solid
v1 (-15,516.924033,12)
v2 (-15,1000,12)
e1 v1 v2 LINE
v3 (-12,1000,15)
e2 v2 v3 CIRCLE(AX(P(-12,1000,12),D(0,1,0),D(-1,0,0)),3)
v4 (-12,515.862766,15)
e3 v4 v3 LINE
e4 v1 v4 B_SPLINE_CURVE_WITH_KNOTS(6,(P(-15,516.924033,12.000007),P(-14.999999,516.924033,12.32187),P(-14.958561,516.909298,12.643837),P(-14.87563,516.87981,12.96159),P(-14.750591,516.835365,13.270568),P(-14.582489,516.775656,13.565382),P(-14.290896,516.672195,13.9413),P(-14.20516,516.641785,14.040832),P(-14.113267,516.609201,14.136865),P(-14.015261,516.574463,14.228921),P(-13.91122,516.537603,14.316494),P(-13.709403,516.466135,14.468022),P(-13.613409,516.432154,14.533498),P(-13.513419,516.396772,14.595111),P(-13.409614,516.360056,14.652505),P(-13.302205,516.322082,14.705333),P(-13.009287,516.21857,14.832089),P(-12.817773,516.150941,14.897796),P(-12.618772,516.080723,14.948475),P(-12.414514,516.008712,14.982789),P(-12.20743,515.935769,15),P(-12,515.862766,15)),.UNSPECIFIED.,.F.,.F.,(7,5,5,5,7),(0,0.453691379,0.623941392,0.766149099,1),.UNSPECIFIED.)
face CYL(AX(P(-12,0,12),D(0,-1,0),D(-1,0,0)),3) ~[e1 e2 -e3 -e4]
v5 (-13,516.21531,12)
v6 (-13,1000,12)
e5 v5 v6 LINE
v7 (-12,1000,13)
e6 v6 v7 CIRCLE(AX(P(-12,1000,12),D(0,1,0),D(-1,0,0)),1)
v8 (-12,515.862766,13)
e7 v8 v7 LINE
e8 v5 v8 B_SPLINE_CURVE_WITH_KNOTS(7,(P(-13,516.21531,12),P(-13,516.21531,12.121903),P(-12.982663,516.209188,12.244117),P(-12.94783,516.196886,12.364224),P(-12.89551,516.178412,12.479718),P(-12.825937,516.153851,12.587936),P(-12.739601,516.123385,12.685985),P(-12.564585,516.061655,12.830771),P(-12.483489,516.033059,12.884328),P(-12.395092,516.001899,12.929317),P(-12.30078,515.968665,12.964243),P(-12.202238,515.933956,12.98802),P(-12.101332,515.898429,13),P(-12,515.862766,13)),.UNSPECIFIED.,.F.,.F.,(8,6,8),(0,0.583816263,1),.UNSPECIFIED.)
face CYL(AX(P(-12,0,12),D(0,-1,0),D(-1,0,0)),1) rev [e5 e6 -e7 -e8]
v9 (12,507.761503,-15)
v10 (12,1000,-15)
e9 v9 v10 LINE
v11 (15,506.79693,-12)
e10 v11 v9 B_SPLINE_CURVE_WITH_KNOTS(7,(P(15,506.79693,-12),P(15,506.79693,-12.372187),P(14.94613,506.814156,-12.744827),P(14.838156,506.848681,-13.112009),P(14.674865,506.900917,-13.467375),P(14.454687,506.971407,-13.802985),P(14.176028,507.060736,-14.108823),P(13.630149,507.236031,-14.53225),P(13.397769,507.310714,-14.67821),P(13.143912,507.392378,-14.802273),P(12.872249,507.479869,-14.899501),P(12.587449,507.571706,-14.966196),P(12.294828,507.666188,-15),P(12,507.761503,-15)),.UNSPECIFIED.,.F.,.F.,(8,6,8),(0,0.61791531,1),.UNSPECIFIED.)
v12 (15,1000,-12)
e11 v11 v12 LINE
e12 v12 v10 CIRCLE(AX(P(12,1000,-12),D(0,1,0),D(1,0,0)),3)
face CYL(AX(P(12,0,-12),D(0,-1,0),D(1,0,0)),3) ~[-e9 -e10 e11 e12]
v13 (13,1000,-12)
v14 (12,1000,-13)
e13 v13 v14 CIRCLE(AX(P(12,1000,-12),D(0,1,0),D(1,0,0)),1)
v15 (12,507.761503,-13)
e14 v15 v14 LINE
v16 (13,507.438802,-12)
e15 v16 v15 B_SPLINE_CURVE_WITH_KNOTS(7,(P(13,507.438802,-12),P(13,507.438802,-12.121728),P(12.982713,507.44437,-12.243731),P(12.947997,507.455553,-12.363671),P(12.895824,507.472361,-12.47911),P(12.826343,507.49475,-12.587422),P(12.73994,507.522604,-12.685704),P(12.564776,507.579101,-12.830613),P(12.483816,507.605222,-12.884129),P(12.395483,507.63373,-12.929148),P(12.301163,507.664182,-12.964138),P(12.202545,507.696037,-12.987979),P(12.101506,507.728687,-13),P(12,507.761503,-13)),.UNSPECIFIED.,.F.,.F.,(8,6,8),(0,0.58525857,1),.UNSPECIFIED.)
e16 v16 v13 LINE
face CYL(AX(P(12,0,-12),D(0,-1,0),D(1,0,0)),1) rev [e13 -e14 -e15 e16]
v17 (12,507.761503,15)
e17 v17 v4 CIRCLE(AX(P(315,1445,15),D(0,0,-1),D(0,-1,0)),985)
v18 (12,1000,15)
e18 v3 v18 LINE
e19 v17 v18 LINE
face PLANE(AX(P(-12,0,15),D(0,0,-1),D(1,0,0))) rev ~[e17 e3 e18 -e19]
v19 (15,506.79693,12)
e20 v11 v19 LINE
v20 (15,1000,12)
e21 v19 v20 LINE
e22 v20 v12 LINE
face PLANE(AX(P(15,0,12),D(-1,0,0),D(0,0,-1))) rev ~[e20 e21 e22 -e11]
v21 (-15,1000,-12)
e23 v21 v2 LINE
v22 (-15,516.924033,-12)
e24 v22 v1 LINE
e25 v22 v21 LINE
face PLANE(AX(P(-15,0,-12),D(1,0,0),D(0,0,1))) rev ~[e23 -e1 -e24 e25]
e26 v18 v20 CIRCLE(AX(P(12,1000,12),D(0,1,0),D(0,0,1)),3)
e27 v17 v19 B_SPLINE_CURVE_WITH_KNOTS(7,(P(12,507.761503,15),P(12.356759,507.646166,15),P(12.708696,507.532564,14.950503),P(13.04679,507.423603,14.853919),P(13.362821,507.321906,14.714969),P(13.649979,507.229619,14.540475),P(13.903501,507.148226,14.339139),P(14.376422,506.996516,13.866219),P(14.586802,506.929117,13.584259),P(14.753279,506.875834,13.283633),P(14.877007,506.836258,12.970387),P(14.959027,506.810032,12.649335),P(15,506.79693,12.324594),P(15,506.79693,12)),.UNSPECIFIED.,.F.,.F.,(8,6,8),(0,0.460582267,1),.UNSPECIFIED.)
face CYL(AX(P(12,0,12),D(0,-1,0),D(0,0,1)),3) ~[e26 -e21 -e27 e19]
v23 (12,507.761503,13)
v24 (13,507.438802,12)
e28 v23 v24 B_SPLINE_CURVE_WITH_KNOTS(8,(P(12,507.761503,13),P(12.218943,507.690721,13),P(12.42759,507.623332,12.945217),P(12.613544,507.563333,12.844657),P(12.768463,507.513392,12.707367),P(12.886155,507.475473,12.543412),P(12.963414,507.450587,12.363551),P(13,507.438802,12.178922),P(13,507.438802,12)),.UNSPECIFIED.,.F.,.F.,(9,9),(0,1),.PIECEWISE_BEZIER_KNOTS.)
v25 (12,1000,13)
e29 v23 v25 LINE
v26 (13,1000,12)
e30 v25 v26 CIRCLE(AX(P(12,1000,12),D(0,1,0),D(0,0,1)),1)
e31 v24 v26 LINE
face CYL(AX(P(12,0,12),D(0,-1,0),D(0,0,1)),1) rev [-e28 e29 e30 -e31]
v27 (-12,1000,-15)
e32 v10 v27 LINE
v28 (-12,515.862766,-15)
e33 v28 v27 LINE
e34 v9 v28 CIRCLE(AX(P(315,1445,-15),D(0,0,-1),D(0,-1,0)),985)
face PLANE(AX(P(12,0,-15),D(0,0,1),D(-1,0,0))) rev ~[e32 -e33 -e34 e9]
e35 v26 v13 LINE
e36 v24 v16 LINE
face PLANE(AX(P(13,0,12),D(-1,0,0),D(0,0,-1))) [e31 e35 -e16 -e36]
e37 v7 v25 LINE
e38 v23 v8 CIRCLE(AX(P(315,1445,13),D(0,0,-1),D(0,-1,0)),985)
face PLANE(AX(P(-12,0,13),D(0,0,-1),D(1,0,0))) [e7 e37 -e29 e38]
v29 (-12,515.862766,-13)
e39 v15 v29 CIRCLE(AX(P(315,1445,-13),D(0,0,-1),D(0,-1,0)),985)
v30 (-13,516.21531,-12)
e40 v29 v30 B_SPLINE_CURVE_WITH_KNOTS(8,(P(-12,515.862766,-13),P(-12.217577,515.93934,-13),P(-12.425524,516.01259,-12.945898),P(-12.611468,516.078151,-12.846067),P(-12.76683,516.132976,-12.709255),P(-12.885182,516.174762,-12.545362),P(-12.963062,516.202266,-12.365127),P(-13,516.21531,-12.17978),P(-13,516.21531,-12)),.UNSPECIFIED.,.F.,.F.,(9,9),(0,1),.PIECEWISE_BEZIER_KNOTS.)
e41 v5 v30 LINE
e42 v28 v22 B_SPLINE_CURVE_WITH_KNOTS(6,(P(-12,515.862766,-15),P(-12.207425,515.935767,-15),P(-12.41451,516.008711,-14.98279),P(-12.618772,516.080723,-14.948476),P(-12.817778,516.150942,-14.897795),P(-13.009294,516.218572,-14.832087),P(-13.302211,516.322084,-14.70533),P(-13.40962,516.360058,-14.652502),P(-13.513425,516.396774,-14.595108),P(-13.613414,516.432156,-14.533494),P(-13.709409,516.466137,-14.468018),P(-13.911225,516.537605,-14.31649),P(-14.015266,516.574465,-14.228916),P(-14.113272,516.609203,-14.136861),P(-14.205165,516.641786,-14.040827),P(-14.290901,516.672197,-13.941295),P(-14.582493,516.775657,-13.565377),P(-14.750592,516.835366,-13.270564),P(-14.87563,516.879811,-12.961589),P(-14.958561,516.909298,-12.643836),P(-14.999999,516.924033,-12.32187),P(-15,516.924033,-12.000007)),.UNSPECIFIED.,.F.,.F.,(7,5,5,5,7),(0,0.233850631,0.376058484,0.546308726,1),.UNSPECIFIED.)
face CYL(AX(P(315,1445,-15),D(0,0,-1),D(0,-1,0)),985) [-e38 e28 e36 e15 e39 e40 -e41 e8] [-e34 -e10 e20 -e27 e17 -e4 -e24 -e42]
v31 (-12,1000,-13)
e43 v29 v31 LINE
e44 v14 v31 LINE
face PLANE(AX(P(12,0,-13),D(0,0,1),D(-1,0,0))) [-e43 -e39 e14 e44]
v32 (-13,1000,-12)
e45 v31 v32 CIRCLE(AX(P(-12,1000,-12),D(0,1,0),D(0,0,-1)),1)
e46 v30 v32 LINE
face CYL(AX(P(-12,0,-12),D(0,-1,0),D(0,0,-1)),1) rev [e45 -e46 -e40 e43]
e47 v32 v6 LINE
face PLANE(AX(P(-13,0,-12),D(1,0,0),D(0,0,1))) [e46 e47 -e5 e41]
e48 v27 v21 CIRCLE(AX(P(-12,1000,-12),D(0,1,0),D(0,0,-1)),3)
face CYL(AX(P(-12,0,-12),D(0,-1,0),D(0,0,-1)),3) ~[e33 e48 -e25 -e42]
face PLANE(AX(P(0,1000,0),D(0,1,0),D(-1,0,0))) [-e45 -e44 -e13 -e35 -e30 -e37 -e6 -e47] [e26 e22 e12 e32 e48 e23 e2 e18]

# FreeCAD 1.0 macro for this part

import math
import FreeCAD as App
import Part
import Sketcher
Q = App.Units.Quantity

doc = App.newDocument("Part")
body = doc.addObject("PartDesign::Body", "Body")

sketch1 = doc.addObject("Sketcher::SketchObject", "Sketch")
body.addObject(sketch1)
sketch1.AttachmentSupport = (doc.XZ_Plane, [""])
sketch1.MapMode = "FlatFace"
sketch1.addGeometry(Part.ArcOfCircle(Part.Circle(App.Vector(12, -12, 0), App.Vector(0, 0, 1), 3), math.radians(-90), math.radians(0)), False)
sketch1.addGeometry(Part.LineSegment(App.Vector(12, -15, 0), App.Vector(-12, -15, 0)), False)
sketch1.addGeometry(Part.ArcOfCircle(Part.Circle(App.Vector(-12, -12, 0), App.Vector(0, 0, 1), 3), math.radians(180), math.radians(270)), False)
sketch1.addGeometry(Part.LineSegment(App.Vector(-15, -12, 0), App.Vector(-15, 12, 0)), False)
sketch1.addGeometry(Part.ArcOfCircle(Part.Circle(App.Vector(-12, 12, 0), App.Vector(0, 0, 1), 3), math.radians(90), math.radians(180)), False)
sketch1.addGeometry(Part.LineSegment(App.Vector(-12, 15, 0), App.Vector(12, 15, 0)), False)
sketch1.addGeometry(Part.ArcOfCircle(Part.Circle(App.Vector(12, 12, 0), App.Vector(0, 0, 1), 3), math.radians(0), math.radians(90)), False)
sketch1.addGeometry(Part.LineSegment(App.Vector(15, 12, 0), App.Vector(15, -12, 0)), False)
sketch1.addGeometry(Part.LineSegment(App.Vector(-13, 12, 0), App.Vector(-13, -12, 0)), False)
sketch1.addGeometry(Part.ArcOfCircle(Part.Circle(App.Vector(-12, -12, 0), App.Vector(0, 0, 1), 1), math.radians(180), math.radians(270)), False)
sketch1.addGeometry(Part.LineSegment(App.Vector(-12, -13, 0), App.Vector(12, -13, 0)), False)
sketch1.addGeometry(Part.ArcOfCircle(Part.Circle(App.Vector(12, -12, 0), App.Vector(0, 0, 1), 1), math.radians(-90), math.radians(0)), False)
sketch1.addGeometry(Part.LineSegment(App.Vector(13, -12, 0), App.Vector(13, 12, 0)), False)
sketch1.addGeometry(Part.ArcOfCircle(Part.Circle(App.Vector(12, 12, 0), App.Vector(0, 0, 1), 1), math.radians(0), math.radians(90)), False)
sketch1.addGeometry(Part.LineSegment(App.Vector(12, 13, 0), App.Vector(-12, 13, 0)), False)
sketch1.addGeometry(Part.ArcOfCircle(Part.Circle(App.Vector(-12, 12, 0), App.Vector(0, 0, 1), 1), math.radians(90), math.radians(180)), False)
sketch1.addConstraint(Sketcher.Constraint("Tangent", 0, 1, 1, 1))
sketch1.addConstraint(Sketcher.Constraint("Tangent", 1, 2, 2, 2))
sketch1.addConstraint(Sketcher.Constraint("Tangent", 2, 1, 3, 1))
sketch1.addConstraint(Sketcher.Constraint("Tangent", 3, 2, 4, 2))
sketch1.addConstraint(Sketcher.Constraint("Tangent", 4, 1, 5, 1))
sketch1.addConstraint(Sketcher.Constraint("Tangent", 5, 2, 6, 2))
sketch1.addConstraint(Sketcher.Constraint("Tangent", 6, 1, 7, 1))
sketch1.addConstraint(Sketcher.Constraint("Tangent", 7, 2, 0, 2))
sketch1.addConstraint(Sketcher.Constraint("Tangent", 8, 2, 9, 1))
sketch1.addConstraint(Sketcher.Constraint("Tangent", 9, 2, 10, 1))
sketch1.addConstraint(Sketcher.Constraint("Tangent", 10, 2, 11, 1))
sketch1.addConstraint(Sketcher.Constraint("Tangent", 11, 2, 12, 1))
sketch1.addConstraint(Sketcher.Constraint("Tangent", 12, 2, 13, 1))
sketch1.addConstraint(Sketcher.Constraint("Tangent", 13, 2, 14, 1))
sketch1.addConstraint(Sketcher.Constraint("Tangent", 14, 2, 15, 1))
sketch1.addConstraint(Sketcher.Constraint("Tangent", 15, 2, 8, 1))
sketch1.addConstraint(Sketcher.Constraint("Horizontal", 1))
sketch1.addConstraint(Sketcher.Constraint("Vertical", 3))
sketch1.addConstraint(Sketcher.Constraint("Horizontal", 5))
sketch1.addConstraint(Sketcher.Constraint("Vertical", 7))
sketch1.addConstraint(Sketcher.Constraint("Vertical", 8))
sketch1.addConstraint(Sketcher.Constraint("Horizontal", 10))
sketch1.addConstraint(Sketcher.Constraint("Vertical", 12))
sketch1.addConstraint(Sketcher.Constraint("Horizontal", 14))
sketch1.addConstraint(Sketcher.Constraint("Coincident", 9, 3, 2, 3))
sketch1.addConstraint(Sketcher.Constraint("Coincident", 11, 3, 0, 3))
sketch1.addConstraint(Sketcher.Constraint("Coincident", 13, 3, 6, 3))
sketch1.addConstraint(Sketcher.Constraint("Equal", 0, 2))
sketch1.addConstraint(Sketcher.Constraint("Equal", 2, 4))
sketch1.addConstraint(Sketcher.Constraint("Equal", 4, 6))
sketch1.addConstraint(Sketcher.Constraint("Equal", 13, 15))
sketch1.addConstraint(Sketcher.Constraint("Symmetric", 0, 3, 4, 3, -1, 1))
sketch1.addConstraint(Sketcher.Constraint("Equal", 14, 3))
sketch1.addConstraint(Sketcher.Constraint("Radius", 9, Q("1 mm")))
sketch1.addConstraint(Sketcher.Constraint("Radius", 0, Q("3 mm")))
sketch1.addConstraint(Sketcher.Constraint("DistanceX", 1, 2, 1, 1, Q("24 mm")))
pad1 = doc.addObject("PartDesign::Pad", "Pad")
body.addObject(pad1)
pad1.Profile = sketch1
pad1.Length = 1000
pad1.Reversed = True

sketch2 = doc.addObject("Sketcher::SketchObject", "Sketch001")
body.addObject(sketch2)
sketch2.AttachmentSupport = (doc.XY_Plane, [""])
sketch2.MapMode = "FlatFace"
sketch2.AttachmentOffset = App.Placement(App.Vector(0, 0, -15), App.Rotation())
sketch2.addGeometry(Part.ArcOfCircle(Part.Circle(App.Vector(315, 1445, 0), App.Vector(0, 0, 1), 985), math.radians(-109.57), math.radians(-107.73)), False)
sketch2.addGeometry(Part.LineSegment(App.Vector(15, 507, 0), App.Vector(15, 0, 0)), False)
sketch2.addGeometry(Part.LineSegment(App.Vector(15, 0, 0), App.Vector(-15, 0, 0)), False)
sketch2.addGeometry(Part.LineSegment(App.Vector(-15, 0, 0), App.Vector(-15, 517, 0)), False)
sketch2.addConstraint(Sketcher.Constraint("Coincident", 0, 2, 1, 1))
sketch2.addConstraint(Sketcher.Constraint("Coincident", 1, 2, 2, 1))
sketch2.addConstraint(Sketcher.Constraint("Coincident", 2, 2, 3, 1))
sketch2.addConstraint(Sketcher.Constraint("Coincident", 3, 2, 0, 1))
sketch2.addConstraint(Sketcher.Constraint("Vertical", 1))
sketch2.addConstraint(Sketcher.Constraint("Horizontal", 2))
sketch2.addConstraint(Sketcher.Constraint("Vertical", 3))
sketch2.addConstraint(Sketcher.Constraint("Symmetric", 1, 2, 2, 2, -1, 1))
sketch2.addConstraint(Sketcher.Constraint("Radius", 0, Q("985 mm")))
sketch2.addConstraint(Sketcher.Constraint("DistanceX", 2, 2, 2, 1, Q("30 mm")))
sketch2.addConstraint(Sketcher.Constraint("DistanceX", -1, 1, 0, 3, Q("315 mm")))
sketch2.addConstraint(Sketcher.Constraint("DistanceY", -1, 1, 0, 3, Q("1445 mm")))
pocket1 = doc.addObject("PartDesign::Pocket", "Pocket")
body.addObject(pocket1)
pocket1.Profile = sketch2
pocket1.Type = "ThroughAll"
pocket1.Reversed = True

doc.recompute()
